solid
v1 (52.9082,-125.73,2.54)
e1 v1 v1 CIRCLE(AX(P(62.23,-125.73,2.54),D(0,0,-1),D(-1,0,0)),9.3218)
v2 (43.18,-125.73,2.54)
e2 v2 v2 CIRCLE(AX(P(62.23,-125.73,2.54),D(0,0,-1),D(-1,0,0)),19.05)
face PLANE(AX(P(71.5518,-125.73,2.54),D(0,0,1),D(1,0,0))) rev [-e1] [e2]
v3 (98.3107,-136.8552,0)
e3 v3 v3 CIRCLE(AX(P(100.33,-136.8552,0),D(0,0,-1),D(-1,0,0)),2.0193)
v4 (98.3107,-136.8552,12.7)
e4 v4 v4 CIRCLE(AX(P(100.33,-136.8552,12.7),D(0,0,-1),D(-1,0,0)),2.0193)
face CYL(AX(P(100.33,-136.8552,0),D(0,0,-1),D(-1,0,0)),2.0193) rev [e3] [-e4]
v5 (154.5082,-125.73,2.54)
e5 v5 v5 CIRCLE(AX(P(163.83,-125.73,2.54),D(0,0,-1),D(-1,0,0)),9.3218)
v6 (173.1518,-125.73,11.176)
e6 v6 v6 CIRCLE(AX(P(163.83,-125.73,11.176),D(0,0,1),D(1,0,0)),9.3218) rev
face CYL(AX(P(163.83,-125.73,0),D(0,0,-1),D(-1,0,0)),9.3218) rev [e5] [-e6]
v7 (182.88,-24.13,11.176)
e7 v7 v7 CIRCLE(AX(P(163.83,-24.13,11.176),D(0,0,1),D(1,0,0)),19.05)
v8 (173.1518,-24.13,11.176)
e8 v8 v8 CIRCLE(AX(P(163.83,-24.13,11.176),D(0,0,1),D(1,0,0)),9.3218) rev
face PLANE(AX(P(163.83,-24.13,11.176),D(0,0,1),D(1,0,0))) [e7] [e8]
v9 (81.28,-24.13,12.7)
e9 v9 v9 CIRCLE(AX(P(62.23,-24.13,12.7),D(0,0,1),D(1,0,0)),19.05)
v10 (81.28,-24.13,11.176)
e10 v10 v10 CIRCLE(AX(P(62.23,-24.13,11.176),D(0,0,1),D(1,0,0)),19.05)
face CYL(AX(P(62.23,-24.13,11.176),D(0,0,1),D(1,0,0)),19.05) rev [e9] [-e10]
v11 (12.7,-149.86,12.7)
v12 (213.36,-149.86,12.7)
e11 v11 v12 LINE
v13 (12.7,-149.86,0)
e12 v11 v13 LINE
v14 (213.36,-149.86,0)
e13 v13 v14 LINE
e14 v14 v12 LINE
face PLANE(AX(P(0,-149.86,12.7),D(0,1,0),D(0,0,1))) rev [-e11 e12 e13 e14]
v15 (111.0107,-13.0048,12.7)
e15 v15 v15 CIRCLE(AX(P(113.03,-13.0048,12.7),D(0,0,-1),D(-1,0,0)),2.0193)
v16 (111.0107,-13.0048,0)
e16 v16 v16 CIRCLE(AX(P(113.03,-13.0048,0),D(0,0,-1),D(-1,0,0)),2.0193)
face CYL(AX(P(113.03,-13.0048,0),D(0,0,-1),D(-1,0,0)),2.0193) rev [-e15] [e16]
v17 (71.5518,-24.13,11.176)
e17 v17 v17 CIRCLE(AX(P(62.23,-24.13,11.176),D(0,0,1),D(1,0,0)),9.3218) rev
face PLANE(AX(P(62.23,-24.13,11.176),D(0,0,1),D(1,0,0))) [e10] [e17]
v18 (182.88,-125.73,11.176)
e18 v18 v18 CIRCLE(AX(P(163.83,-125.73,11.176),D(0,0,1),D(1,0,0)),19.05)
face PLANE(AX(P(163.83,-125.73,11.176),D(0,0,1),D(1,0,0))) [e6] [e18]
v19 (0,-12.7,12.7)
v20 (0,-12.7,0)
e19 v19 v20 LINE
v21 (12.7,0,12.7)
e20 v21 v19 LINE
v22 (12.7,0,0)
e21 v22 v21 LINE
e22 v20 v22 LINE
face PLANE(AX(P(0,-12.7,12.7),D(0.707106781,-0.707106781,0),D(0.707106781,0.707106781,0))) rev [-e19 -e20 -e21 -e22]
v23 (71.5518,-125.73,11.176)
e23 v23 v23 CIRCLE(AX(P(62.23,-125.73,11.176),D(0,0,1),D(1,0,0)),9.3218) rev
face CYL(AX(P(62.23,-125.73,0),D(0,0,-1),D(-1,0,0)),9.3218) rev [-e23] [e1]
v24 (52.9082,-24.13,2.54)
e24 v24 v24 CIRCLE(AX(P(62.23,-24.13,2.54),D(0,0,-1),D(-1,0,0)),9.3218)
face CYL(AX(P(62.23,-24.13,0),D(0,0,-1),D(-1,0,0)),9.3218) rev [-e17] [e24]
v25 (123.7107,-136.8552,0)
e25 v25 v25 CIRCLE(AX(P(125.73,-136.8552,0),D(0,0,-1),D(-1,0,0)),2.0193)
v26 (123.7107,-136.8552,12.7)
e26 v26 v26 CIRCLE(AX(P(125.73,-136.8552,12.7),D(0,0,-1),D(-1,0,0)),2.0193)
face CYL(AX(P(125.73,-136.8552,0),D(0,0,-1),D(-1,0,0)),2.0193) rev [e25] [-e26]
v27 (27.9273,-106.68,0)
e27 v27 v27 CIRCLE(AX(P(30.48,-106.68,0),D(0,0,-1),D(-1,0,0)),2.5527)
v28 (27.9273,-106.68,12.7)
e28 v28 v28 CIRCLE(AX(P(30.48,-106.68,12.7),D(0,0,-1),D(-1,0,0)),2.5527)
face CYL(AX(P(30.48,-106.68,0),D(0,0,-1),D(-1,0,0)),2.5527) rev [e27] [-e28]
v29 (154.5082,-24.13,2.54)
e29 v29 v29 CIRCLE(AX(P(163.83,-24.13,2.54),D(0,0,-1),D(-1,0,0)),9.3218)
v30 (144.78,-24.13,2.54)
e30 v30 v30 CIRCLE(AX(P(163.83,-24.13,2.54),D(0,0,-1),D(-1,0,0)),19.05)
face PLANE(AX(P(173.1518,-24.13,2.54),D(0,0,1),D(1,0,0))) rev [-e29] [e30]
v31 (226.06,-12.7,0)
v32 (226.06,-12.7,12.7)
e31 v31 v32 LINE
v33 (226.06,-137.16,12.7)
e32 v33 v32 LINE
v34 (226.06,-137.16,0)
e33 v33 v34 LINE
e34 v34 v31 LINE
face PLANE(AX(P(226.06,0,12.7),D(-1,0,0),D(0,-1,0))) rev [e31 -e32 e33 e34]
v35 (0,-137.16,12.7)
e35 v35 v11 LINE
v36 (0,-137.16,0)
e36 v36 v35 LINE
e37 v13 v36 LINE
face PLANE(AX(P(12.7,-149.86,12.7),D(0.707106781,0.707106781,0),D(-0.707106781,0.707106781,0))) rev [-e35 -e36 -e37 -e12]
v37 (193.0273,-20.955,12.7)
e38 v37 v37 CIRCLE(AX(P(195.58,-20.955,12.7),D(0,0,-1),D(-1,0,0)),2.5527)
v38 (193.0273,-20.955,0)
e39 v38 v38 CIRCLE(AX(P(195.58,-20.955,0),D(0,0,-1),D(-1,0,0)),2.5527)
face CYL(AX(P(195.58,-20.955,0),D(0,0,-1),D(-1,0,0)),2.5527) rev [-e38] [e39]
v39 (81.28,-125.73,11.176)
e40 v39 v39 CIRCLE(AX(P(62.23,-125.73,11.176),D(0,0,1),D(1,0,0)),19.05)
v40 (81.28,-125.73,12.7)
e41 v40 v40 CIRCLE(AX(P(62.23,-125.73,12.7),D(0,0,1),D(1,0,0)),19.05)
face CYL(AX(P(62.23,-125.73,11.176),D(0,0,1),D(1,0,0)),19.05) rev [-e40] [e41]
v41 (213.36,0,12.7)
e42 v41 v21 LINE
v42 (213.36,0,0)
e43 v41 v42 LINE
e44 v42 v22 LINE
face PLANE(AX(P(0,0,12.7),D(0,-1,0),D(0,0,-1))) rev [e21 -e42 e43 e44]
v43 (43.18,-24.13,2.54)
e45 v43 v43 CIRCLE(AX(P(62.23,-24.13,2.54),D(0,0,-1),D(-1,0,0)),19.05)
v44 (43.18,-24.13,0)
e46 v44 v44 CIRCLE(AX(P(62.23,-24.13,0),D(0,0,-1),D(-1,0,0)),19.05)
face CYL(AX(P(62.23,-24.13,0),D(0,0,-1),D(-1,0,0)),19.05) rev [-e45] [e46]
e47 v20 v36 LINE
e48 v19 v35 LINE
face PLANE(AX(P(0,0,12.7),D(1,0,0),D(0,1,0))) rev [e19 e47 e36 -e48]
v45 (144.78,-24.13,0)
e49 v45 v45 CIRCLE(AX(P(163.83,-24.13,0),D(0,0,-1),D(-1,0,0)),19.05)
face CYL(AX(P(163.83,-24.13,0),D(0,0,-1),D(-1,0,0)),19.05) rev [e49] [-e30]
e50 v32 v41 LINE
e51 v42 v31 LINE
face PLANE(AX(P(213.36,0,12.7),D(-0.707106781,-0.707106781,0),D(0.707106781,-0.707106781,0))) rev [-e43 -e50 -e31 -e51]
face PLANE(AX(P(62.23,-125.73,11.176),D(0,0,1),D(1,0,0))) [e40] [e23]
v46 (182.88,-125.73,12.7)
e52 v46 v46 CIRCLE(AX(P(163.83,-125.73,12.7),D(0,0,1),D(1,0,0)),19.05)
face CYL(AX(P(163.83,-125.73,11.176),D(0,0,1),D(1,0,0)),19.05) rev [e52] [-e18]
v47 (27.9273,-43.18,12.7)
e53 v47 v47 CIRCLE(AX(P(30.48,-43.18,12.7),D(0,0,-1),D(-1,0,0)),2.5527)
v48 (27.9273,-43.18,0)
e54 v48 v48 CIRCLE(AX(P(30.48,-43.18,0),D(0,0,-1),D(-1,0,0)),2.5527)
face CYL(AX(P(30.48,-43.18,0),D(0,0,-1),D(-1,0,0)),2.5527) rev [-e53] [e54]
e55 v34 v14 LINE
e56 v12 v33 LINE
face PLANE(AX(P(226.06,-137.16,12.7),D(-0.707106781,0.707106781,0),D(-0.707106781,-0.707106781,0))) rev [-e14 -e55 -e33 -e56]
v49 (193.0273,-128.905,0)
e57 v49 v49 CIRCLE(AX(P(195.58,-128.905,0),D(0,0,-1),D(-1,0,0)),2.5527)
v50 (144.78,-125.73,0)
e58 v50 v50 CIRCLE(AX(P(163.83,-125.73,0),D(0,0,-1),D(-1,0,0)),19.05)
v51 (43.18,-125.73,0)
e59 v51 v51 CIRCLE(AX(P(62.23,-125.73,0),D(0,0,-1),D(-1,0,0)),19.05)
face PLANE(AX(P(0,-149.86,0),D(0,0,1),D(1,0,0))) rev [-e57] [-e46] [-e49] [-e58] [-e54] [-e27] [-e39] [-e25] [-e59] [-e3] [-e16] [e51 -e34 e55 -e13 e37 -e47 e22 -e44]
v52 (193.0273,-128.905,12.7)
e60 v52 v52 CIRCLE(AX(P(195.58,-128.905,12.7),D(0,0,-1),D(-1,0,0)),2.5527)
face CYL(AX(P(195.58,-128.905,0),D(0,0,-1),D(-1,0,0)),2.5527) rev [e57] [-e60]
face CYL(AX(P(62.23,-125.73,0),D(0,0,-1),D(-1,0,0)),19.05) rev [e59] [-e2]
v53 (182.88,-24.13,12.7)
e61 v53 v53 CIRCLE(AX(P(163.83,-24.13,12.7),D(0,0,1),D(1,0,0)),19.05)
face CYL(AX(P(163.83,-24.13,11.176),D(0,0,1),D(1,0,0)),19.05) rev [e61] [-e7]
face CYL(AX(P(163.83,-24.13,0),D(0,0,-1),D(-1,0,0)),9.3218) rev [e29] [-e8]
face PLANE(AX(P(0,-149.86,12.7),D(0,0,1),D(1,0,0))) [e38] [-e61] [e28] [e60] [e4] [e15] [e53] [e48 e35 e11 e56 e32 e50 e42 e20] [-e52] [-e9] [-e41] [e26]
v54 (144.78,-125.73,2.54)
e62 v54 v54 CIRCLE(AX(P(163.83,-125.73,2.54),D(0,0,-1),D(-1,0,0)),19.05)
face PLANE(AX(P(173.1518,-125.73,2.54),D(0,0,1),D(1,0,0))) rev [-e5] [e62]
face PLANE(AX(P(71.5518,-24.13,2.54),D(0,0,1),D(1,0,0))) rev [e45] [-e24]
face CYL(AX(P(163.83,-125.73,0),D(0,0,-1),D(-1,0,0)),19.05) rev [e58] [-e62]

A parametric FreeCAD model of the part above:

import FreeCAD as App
import Part
import Sketcher

V = App.Vector
Q = App.Units.Quantity


def edges_at(feature, points):
    """Names of the edges that pass closest to the given points."""
    edges = feature.Shape.Edges
    near = lambda p: min(range(len(edges)), key=lambda i: edges[i].distToShape(Part.Vertex(*p))[0])
    return sorted({f"Edge{near(p) + 1}" for p in points})


def add_polygon(sketch, points):
    """Adds a closed chain of lines whose ends are joined by coincident constraints."""
    first, n = sketch.GeometryCount, len(points)
    for a, b in zip(points, points[1:] + points[:1]):
        sketch.addGeometry(Part.LineSegment(App.Vector(*a, 0), App.Vector(*b, 0)), False)
    for i in range(n):
        sketch.addConstraint(Sketcher.Constraint("Coincident", first + i, 2, first + (i + 1) % n, 1))

doc = App.newDocument("Part")
body = doc.addObject("PartDesign::Body", "Body")

sketch1 = doc.addObject("Sketcher::SketchObject", "Sketch")
body.addObject(sketch1)
sketch1.AttachmentSupport = (doc.XY_Plane, [""])
sketch1.MapMode = "FlatFace"
add_polygon(sketch1, [(0, 0), (0, -150), (226, -150), (226, 0)])
sketch1.addConstraint(Sketcher.Constraint("Vertical", 0))
sketch1.addConstraint(Sketcher.Constraint("Horizontal", 1))
sketch1.addConstraint(Sketcher.Constraint("Vertical", 2))
sketch1.addConstraint(Sketcher.Constraint("Horizontal", 3))
sketch1.addConstraint(Sketcher.Constraint("Coincident", 3, 2, -1, 1))
sketch1.addConstraint(Sketcher.Constraint("DistanceX", 1, 1, 1, 2, Q("8.9 in")))
sketch1.addConstraint(Sketcher.Constraint("DistanceY", 0, 2, 0, 1, Q("5.9 in")))
pad1 = doc.addObject("PartDesign::Pad", "Pad")
body.addObject(pad1)
pad1.Profile = sketch1
pad1.Length = Q("0.5 in")

sketch2 = doc.addObject("Sketcher::SketchObject", "Sketch001")
body.addObject(sketch2)
sketch2.AttachmentSupport = (doc.XY_Plane, [""])
sketch2.MapMode = "FlatFace"
sketch2.addGeometry(Part.Circle(V(195.6, -21, 0), V(0, 0, 1), 2.6), False)
sketch2.addGeometry(Part.Circle(V(195.6, -128.9, 0), V(0, 0, 1), 2.6), False)
sketch2.addGeometry(Part.Circle(V(30.5, -43.2, 0), V(0, 0, 1), 2.6), False)
sketch2.addGeometry(Part.Circle(V(30.5, -106.7, 0), V(0, 0, 1), 2.6), False)
sketch2.addConstraint(Sketcher.Constraint("Equal", 0, 1))
sketch2.addConstraint(Sketcher.Constraint("Equal", 1, 2))
sketch2.addConstraint(Sketcher.Constraint("Equal", 2, 3))
sketch2.addConstraint(Sketcher.Constraint("Vertical", 0, 3, 1, 3))
sketch2.addConstraint(Sketcher.Constraint("Vertical", 2, 3, 3, 3))
sketch2.addConstraint(Sketcher.Constraint("Diameter", 0, Q("0.201 in")))
sketch2.addConstraint(Sketcher.Constraint("DistanceX", -1, 1, 0, 3, Q("7.7 in")))
sketch2.addConstraint(Sketcher.Constraint("DistanceX", -1, 1, 2, 3, Q("1.2 in")))
sketch2.addConstraint(Sketcher.Constraint("DistanceY", 2, 3, -1, 1, Q("1.7 in")))
sketch2.addConstraint(Sketcher.Constraint("DistanceY", 3, 3, -1, 1, Q("4.2 in")))
sketch2.addConstraint(Sketcher.Constraint("DistanceY", 1, 3, 0, 3, Q("4.25 in")))
sketch2.addConstraint(Sketcher.Constraint("DistanceY", 0, 3, -1, 1, Q("0.825 in")))
doc.recompute()
hole = doc.addObject("PartDesign::Hole", "Hole")
body.addObject(hole)
hole.Profile = sketch2
hole.ThreadType = "None"
hole.Diameter = Q("0.201 in")
hole.DepthType = "ThroughAll"
hole.Reversed = True

sketch3 = doc.addObject("Sketcher::SketchObject", "Sketch002")
body.addObject(sketch3)
sketch3.AttachmentSupport = (doc.XY_Plane, [""])
sketch3.MapMode = "FlatFace"
sketch3.addGeometry(Part.Circle(V(164, -24, 0), V(0, 0, 1), 9), False)
sketch3.addGeometry(Part.Circle(V(62, -24, 0), V(0, 0, 1), 9), False)
sketch3.addGeometry(Part.Circle(V(62, -126, 0), V(0, 0, 1), 9), False)
sketch3.addGeometry(Part.Circle(V(164, -126, 0), V(0, 0, 1), 9), False)
sketch3.addConstraint(Sketcher.Constraint("Equal", 0, 1))
sketch3.addConstraint(Sketcher.Constraint("Equal", 1, 2))
sketch3.addConstraint(Sketcher.Constraint("Equal", 2, 3))
sketch3.addConstraint(Sketcher.Constraint("Horizontal", 0, 3, 1, 3))
sketch3.addConstraint(Sketcher.Constraint("Horizontal", 2, 3, 3, 3))
sketch3.addConstraint(Sketcher.Constraint("Vertical", 1, 3, 2, 3))
sketch3.addConstraint(Sketcher.Constraint("Vertical", 0, 3, 3, 3))
sketch3.addConstraint(Sketcher.Constraint("Diameter", 0, Q("0.734 in")))
sketch3.addConstraint(Sketcher.Constraint("DistanceX", 1, 3, 0, 3, Q("4 in")))
sketch3.addConstraint(Sketcher.Constraint("DistanceY", 2, 3, 1, 3, Q("4 in")))
sketch3.addConstraint(Sketcher.Constraint("DistanceX", -1, 1, 0, 3, Q("6.45 in")))
sketch3.addConstraint(Sketcher.Constraint("DistanceY", 0, 3, -1, 1, Q("0.95 in")))
doc.recompute()
hole2 = doc.addObject("PartDesign::Hole", "Hole001")
body.addObject(hole2)
hole2.Profile = sketch3
hole2.ThreadType = "None"
hole2.Diameter = Q("0.734 in")
hole2.DepthType = "ThroughAll"
hole2.HoleCutType = "Counterbore"
hole2.HoleCutDiameter = Q("1.5 in")
hole2.HoleCutDepth = Q("0.1 in")
hole2.Reversed = True

sketch4 = doc.addObject("Sketcher::SketchObject", "Sketch003")
body.addObject(sketch4)
sketch4.AttachmentSupport = (doc.XY_Plane, [""])
sketch4.MapMode = "FlatFace"
sketch4.addGeometry(Part.Circle(V(113, -13, 0), V(0, 0, 1), 2), False)
sketch4.addGeometry(Part.Circle(V(125.7, -136.9, 0), V(0, 0, 1), 2), False)
sketch4.addGeometry(Part.Circle(V(100.3, -136.9, 0), V(0, 0, 1), 2), False)
sketch4.addConstraint(Sketcher.Constraint("Equal", 0, 1))
sketch4.addConstraint(Sketcher.Constraint("Equal", 1, 2))
sketch4.addConstraint(Sketcher.Constraint("Horizontal", 1, 3, 2, 3))
sketch4.addConstraint(Sketcher.Constraint("Diameter", 0, Q("0.159 in")))
sketch4.addConstraint(Sketcher.Constraint("DistanceX", 2, 3, 1, 3, Q("1 in")))
sketch4.addConstraint(Sketcher.Constraint("DistanceX", 0, 3, 1, 3, Q("0.5 in")))
sketch4.addConstraint(Sketcher.Constraint("DistanceX", -1, 1, 0, 3, Q("4.45 in")))
sketch4.addConstraint(Sketcher.Constraint("DistanceY", 0, 3, -1, 1, Q("0.512 in")))
sketch4.addConstraint(Sketcher.Constraint("DistanceY", 1, 3, -1, 1, Q("5.388 in")))
doc.recompute()
hole3 = doc.addObject("PartDesign::Hole", "Hole002")
body.addObject(hole3)
hole3.Profile = sketch4
hole3.ThreadType = "None"
hole3.Diameter = Q("0.159 in")
hole3.DepthType = "ThroughAll"
hole3.Reversed = True
doc.recompute()

chamfer = doc.addObject("PartDesign::Chamfer", "Chamfer")
body.addObject(chamfer)
chamfer.Base = (hole3, edges_at(hole3, [
    (0, 0, 6.35),
    (226.06, 0, 6.35),
    (226.06, -149.86, 6.35),
    (0, -149.86, 6.35),
]))
chamfer.Size = Q("0.5 in")

sketch5 = doc.addObject("Sketcher::SketchObject", "Sketch004")
body.addObject(sketch5)
sketch5.AttachmentSupport = (doc.XY_Plane, [""])
sketch5.MapMode = "FlatFace"
sketch5.AttachmentOffset = App.Placement(V(0, 0, 0.5 * 25.4), App.Rotation())
sketch5.addGeometry(Part.Circle(V(164, -126, 0), V(0, 0, 1), 19), False)
sketch5.addGeometry(Part.Circle(V(62, -126, 0), V(0, 0, 1), 19), False)
sketch5.addGeometry(Part.Circle(V(164, -24, 0), V(0, 0, 1), 19), False)
sketch5.addGeometry(Part.Circle(V(62, -24, 0), V(0, 0, 1), 19), False)
sketch5.addConstraint(Sketcher.Constraint("Equal", 0, 1))
sketch5.addConstraint(Sketcher.Constraint("Equal", 1, 2))
sketch5.addConstraint(Sketcher.Constraint("Equal", 2, 3))
sketch5.addConstraint(Sketcher.Constraint("Horizontal", 0, 3, 1, 3))
sketch5.addConstraint(Sketcher.Constraint("Horizontal", 2, 3, 3, 3))
sketch5.addConstraint(Sketcher.Constraint("Vertical", 0, 3, 2, 3))
sketch5.addConstraint(Sketcher.Constraint("Vertical", 1, 3, 3, 3))
sketch5.addConstraint(Sketcher.Constraint("Diameter", 0, Q("1.5 in")))
sketch5.addConstraint(Sketcher.Constraint("DistanceX", 1, 3, 0, 3, Q("4 in")))
sketch5.addConstraint(Sketcher.Constraint("DistanceY", 0, 3, 2, 3, Q("4 in")))
sketch5.addConstraint(Sketcher.Constraint("DistanceX", -1, 1, 0, 3, Q("6.45 in")))
sketch5.addConstraint(Sketcher.Constraint("DistanceY", 0, 3, -1, 1, Q("4.95 in")))
pocket1 = doc.addObject("PartDesign::Pocket", "Pocket")
body.addObject(pocket1)
pocket1.Profile = sketch5
pocket1.Length = Q("0.06 in")

doc.recompute()
